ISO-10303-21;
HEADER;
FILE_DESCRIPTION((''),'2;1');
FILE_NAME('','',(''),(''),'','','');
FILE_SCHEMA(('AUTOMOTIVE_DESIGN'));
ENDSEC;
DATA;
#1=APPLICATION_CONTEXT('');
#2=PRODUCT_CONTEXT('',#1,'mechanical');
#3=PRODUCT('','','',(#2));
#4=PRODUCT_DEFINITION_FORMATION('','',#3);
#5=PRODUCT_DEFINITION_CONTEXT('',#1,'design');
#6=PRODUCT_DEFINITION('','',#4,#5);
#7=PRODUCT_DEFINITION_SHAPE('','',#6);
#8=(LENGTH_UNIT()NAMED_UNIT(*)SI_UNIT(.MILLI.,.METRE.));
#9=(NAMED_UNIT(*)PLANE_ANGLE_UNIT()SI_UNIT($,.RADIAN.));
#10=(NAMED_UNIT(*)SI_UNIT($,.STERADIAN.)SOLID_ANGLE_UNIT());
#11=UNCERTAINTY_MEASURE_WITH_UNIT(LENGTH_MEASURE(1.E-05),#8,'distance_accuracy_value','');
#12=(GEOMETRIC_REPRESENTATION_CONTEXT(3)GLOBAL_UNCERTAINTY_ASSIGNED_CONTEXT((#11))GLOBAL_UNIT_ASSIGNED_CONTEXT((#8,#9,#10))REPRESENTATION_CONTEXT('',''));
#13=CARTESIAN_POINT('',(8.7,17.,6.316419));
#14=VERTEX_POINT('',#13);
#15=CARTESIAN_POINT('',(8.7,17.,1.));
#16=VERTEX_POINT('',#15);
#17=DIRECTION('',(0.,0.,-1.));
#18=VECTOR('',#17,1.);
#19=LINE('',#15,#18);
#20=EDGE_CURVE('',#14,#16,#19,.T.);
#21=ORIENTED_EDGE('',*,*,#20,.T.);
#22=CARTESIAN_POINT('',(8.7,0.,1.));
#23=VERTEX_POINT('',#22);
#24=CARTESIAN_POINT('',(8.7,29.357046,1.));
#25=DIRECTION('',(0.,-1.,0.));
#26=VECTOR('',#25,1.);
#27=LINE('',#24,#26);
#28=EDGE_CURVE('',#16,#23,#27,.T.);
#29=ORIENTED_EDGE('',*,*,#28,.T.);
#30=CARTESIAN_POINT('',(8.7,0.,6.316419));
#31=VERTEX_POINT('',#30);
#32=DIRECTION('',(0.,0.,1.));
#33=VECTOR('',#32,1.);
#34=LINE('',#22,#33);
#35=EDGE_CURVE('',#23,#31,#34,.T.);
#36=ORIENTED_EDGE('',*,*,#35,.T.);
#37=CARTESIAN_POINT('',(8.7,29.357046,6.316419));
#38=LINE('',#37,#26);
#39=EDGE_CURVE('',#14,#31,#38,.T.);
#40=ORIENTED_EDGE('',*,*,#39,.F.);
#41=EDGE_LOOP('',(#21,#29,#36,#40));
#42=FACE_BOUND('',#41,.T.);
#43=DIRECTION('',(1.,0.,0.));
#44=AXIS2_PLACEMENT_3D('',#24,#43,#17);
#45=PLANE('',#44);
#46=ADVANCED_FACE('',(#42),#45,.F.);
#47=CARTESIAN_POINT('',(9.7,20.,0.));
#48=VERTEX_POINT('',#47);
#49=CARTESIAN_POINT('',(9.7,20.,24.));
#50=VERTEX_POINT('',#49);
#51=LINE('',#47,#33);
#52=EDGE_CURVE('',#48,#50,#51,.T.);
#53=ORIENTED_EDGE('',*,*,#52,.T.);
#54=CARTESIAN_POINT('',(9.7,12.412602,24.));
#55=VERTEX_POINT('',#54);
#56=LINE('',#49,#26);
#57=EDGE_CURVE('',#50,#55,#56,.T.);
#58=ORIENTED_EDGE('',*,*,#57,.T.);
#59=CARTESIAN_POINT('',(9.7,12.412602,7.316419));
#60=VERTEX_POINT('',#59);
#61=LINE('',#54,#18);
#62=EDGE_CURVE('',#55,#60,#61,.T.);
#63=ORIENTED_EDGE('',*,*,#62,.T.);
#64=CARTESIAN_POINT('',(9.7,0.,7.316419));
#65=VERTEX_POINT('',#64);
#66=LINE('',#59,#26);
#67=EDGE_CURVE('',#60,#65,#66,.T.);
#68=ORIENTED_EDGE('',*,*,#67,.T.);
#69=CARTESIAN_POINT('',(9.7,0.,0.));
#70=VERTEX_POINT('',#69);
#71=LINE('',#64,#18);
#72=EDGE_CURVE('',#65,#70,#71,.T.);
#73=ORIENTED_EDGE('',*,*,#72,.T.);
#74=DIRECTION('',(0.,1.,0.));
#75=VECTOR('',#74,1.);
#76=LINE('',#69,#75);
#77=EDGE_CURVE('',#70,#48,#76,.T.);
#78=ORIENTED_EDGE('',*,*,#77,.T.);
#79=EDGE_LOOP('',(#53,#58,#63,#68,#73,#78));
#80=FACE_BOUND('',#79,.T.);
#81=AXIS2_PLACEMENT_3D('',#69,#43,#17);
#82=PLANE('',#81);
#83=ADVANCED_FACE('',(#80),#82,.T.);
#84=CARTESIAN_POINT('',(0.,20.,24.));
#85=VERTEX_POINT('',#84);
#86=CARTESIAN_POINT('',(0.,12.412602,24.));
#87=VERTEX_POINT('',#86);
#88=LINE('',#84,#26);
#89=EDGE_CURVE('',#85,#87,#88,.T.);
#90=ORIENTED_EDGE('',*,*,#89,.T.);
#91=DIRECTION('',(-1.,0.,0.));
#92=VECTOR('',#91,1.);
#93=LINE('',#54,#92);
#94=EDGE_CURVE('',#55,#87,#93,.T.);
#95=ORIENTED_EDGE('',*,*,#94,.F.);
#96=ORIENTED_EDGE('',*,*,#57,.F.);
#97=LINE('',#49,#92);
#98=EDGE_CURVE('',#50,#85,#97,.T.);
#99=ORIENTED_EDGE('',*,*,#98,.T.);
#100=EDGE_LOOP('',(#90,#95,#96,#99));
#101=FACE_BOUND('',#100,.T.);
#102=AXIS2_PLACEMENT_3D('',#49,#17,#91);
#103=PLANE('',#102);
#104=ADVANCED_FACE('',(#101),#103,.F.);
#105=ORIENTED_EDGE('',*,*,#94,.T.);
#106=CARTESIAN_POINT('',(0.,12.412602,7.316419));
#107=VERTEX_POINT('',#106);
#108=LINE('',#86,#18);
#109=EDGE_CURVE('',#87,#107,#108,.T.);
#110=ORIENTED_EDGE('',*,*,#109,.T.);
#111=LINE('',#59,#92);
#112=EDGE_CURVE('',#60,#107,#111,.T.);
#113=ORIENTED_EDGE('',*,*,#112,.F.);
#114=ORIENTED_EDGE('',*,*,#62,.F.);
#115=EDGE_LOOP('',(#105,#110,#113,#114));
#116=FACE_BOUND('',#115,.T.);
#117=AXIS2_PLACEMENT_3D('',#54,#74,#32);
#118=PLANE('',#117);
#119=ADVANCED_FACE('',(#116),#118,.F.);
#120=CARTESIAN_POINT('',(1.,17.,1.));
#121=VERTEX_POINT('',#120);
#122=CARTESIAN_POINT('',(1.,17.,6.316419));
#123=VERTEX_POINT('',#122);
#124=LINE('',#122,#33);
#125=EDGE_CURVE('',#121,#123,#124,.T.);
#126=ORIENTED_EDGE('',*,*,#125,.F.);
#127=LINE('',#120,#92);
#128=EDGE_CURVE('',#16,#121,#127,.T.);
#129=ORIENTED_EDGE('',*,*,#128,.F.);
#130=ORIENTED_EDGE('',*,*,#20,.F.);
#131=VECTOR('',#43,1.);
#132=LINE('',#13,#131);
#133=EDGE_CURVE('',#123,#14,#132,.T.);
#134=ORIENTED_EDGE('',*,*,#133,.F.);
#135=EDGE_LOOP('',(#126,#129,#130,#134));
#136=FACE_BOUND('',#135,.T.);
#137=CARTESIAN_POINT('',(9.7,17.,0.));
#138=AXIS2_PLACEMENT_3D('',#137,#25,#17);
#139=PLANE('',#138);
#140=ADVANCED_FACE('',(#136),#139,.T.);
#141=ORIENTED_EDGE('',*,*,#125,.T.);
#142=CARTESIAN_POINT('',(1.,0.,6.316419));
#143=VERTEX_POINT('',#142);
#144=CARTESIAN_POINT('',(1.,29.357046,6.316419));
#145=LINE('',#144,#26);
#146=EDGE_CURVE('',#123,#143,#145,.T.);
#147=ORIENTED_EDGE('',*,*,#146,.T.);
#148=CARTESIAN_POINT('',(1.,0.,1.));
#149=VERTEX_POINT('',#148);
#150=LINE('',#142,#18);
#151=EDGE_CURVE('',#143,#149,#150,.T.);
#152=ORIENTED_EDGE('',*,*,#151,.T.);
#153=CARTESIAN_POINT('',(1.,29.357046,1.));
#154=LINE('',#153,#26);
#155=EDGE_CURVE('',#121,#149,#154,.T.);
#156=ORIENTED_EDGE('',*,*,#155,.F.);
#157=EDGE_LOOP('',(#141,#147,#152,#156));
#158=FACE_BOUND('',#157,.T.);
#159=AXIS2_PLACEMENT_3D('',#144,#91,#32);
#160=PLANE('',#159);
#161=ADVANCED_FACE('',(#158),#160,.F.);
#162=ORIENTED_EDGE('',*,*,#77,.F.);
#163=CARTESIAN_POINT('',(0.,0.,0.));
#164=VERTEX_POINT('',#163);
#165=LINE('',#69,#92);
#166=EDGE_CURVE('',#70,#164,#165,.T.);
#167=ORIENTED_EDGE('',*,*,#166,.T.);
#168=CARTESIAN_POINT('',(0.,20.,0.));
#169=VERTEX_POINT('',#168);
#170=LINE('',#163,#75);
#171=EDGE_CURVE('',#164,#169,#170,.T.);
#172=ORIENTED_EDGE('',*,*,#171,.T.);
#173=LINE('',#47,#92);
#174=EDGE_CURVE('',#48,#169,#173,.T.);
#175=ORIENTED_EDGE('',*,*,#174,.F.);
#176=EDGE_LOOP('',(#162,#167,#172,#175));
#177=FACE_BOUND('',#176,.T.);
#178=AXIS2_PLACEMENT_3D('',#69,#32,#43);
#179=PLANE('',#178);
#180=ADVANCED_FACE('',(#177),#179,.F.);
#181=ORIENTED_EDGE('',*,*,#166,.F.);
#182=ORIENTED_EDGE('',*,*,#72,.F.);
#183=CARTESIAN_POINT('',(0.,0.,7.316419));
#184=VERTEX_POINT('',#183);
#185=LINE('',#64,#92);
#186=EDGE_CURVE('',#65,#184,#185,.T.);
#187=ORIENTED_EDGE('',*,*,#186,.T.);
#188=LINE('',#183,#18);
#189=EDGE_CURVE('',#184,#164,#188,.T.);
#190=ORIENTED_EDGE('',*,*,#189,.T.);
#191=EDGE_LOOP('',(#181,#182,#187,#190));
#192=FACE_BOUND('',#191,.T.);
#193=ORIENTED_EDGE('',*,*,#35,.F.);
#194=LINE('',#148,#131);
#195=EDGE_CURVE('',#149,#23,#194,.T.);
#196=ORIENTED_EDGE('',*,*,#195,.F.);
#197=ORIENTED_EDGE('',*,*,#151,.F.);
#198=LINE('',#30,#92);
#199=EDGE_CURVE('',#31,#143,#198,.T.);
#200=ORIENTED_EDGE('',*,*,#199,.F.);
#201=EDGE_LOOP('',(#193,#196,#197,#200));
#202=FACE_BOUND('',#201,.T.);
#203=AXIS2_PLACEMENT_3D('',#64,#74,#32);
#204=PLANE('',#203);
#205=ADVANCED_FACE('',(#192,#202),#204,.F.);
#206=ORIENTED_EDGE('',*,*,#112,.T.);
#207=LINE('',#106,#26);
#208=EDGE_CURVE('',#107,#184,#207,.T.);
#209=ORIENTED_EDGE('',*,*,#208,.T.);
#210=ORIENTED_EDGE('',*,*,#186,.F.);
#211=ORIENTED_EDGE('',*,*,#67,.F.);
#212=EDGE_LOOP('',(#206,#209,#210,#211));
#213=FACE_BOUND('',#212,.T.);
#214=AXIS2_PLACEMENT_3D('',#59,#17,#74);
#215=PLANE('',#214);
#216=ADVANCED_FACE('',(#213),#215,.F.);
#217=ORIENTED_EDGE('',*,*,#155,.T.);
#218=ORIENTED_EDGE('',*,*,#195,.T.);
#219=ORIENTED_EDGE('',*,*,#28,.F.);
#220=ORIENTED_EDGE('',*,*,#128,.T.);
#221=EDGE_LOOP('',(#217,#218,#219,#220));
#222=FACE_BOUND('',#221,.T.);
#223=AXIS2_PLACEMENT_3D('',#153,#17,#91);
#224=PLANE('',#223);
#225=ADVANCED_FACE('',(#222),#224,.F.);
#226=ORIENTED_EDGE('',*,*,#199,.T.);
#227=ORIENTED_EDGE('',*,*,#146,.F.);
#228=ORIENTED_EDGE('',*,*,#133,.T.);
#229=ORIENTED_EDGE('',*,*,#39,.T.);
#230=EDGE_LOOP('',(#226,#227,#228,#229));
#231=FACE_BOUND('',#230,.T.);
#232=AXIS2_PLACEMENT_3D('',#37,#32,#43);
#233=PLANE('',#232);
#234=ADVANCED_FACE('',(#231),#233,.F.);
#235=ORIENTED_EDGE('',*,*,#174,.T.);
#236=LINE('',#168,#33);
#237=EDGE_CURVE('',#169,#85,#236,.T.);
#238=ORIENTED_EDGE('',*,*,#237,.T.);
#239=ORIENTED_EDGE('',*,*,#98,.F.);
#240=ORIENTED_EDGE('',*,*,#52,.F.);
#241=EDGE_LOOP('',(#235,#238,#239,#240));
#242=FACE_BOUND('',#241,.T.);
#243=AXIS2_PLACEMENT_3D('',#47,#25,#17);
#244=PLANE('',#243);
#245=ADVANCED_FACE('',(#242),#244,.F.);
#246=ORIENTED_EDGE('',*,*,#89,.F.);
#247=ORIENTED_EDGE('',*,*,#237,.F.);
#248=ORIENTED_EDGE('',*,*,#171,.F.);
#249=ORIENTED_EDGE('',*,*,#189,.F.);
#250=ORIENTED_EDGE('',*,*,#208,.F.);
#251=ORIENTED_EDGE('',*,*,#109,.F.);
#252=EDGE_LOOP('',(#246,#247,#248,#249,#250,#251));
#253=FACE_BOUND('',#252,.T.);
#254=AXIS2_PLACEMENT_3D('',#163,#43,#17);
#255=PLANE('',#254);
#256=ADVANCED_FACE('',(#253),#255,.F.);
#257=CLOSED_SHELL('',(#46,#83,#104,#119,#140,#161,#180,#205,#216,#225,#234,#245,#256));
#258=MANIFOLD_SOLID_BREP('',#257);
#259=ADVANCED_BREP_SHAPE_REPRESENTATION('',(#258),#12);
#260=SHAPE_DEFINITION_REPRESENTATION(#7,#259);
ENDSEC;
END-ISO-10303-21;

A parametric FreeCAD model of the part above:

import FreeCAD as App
import Part
import Sketcher

doc = App.newDocument("Part")
body = doc.addObject("PartDesign::Body", "Body")

# Sketch on YZ plane
sketch1 = body.newObject("Sketcher::SketchObject", "Sketch")
sketch1.AttachmentSupport = (doc.getObject("YZ_Plane"), [""])
sketch1.MapMode = "FlatFace"
sketch1.addGeometry(Part.LineSegment(App.Vector(0, 0, 0), App.Vector(20, 0, 0)), False)
sketch1.addGeometry(Part.LineSegment(App.Vector(20, 0, 0), App.Vector(20, 24, 0)), False)
sketch1.addGeometry(Part.LineSegment(App.Vector(20, 24, 0), App.Vector(12, 24, 0)), False)
sketch1.addGeometry(Part.LineSegment(App.Vector(12, 24, 0), App.Vector(12, 7, 0)), False)
sketch1.addGeometry(Part.LineSegment(App.Vector(12, 7, 0), App.Vector(0, 7, 0)), False)
sketch1.addGeometry(Part.LineSegment(App.Vector(0, 7, 0), App.Vector(0, 0, 0)), False)
sketch1.addConstraint(Sketcher.Constraint("Coincident", 0, 2, 1, 1))
sketch1.addConstraint(Sketcher.Constraint("Coincident", 1, 2, 2, 1))
sketch1.addConstraint(Sketcher.Constraint("Coincident", 2, 2, 3, 1))
sketch1.addConstraint(Sketcher.Constraint("Coincident", 3, 2, 4, 1))
sketch1.addConstraint(Sketcher.Constraint("Coincident", 4, 2, 5, 1))
sketch1.addConstraint(Sketcher.Constraint("Coincident", 5, 2, 0, 1))
sketch1.addConstraint(Sketcher.Constraint("Horizontal", 0))
sketch1.addConstraint(Sketcher.Constraint("Vertical", 1))
sketch1.addConstraint(Sketcher.Constraint("Horizontal", 2))
sketch1.addConstraint(Sketcher.Constraint("Vertical", 3))
sketch1.addConstraint(Sketcher.Constraint("Horizontal", 4))
sketch1.addConstraint(Sketcher.Constraint("Vertical", 5))
sketch1.addConstraint(Sketcher.Constraint("Coincident", 5, 2, -1, 1))
sketch1.addConstraint(Sketcher.Constraint("DistanceX", 0, 1, 0, 2, 20.0))
sketch1.addConstraint(Sketcher.Constraint("DistanceY", 1, 1, 1, 2, 24.0))
sketch1.addConstraint(Sketcher.Constraint("DistanceY", 3, 2, 3, 1, 16.683581))
sketch1.addConstraint(Sketcher.Constraint("DistanceX", 2, 2, 2, 1, 7.587398))
pad1 = body.newObject("PartDesign::Pad", "Pad")
pad1.Profile = sketch1
pad1.Length = 9.7

# Sketch on XZ plane
sketch2 = body.newObject("Sketcher::SketchObject", "Sketch001")
sketch2.AttachmentSupport = (doc.getObject("XZ_Plane"), [""])
sketch2.MapMode = "FlatFace"
sketch2.addGeometry(Part.LineSegment(App.Vector(1, 6, 0), App.Vector(1, 1, 0)), False)
sketch2.addGeometry(Part.LineSegment(App.Vector(1, 1, 0), App.Vector(9, 1, 0)), False)
sketch2.addGeometry(Part.LineSegment(App.Vector(9, 1, 0), App.Vector(9, 6, 0)), False)
sketch2.addGeometry(Part.LineSegment(App.Vector(9, 6, 0), App.Vector(1, 6, 0)), False)
sketch2.addConstraint(Sketcher.Constraint("Coincident", 0, 2, 1, 1))
sketch2.addConstraint(Sketcher.Constraint("Coincident", 1, 2, 2, 1))
sketch2.addConstraint(Sketcher.Constraint("Coincident", 2, 2, 3, 1))
sketch2.addConstraint(Sketcher.Constraint("Coincident", 3, 2, 0, 1))
sketch2.addConstraint(Sketcher.Constraint("Vertical", 0))
sketch2.addConstraint(Sketcher.Constraint("Horizontal", 1))
sketch2.addConstraint(Sketcher.Constraint("Vertical", 2))
sketch2.addConstraint(Sketcher.Constraint("Horizontal", 3))
sketch2.addConstraint(Sketcher.Constraint("DistanceX", 1, 1, 1, 2, 7.7))
sketch2.addConstraint(Sketcher.Constraint("DistanceX", -1, 1, 0, 2, 1.0))
sketch2.addConstraint(Sketcher.Constraint("DistanceY", -1, 1, 0, 2, 1.0))
sketch2.addConstraint(Sketcher.Constraint("DistanceY", 0, 2, 0, 1, 5.316419))
pocket1 = body.newObject("PartDesign::Pocket", "Pocket")
pocket1.Profile = sketch2
pocket1.Length = 17

doc.recompute()
